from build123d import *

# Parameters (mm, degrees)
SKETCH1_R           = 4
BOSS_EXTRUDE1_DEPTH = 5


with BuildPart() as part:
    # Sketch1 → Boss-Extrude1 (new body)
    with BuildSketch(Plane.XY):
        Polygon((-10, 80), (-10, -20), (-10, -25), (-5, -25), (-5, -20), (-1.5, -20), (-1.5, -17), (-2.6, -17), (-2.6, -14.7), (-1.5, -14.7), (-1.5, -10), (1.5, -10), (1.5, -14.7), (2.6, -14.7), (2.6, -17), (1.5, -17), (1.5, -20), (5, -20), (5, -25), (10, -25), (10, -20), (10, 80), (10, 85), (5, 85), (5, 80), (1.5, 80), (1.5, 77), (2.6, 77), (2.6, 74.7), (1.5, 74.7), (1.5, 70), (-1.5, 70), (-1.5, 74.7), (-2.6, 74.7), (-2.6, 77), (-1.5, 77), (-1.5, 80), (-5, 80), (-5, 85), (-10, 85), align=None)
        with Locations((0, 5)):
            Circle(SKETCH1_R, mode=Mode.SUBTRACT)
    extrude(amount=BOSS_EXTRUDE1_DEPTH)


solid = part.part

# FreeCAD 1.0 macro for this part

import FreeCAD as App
import Part
import Sketcher

V = App.Vector


def add_polygon(sketch, points):
    """Adds a closed chain of lines whose ends are joined by coincident constraints."""
    first, n = sketch.GeometryCount, len(points)
    for a, b in zip(points, points[1:] + points[:1]):
        sketch.addGeometry(Part.LineSegment(App.Vector(*a, 0), App.Vector(*b, 0)), False)
    for i in range(n):
        sketch.addConstraint(Sketcher.Constraint("Coincident", first + i, 2, first + (i + 1) % n, 1))

doc = App.newDocument("Part")
body = doc.addObject("PartDesign::Body", "Body")

sketch1 = doc.addObject("Sketcher::SketchObject", "Sketch")
body.addObject(sketch1)
sketch1.AttachmentSupport = (doc.XY_Plane, [""])
sketch1.MapMode = "FlatFace"
add_polygon(sketch1, [(-10, -25), (-5, -25), (-5, -20), (-1.5, -20), (-1.5, -17), (-2.6, -17), (-2.6, -14.7), (-1.5, -14.7), (-1.5, -10), (1.5, -10), (1.5, -14.7), (2.6, -14.7), (2.6, -17), (1.5, -17), (1.5, -20), (5, -20), (5, -25), (10, -25), (10, 85), (5, 85), (5, 80), (1.5, 80), (1.5, 77), (2.6, 77), (2.6, 74.7), (1.5, 74.7), (1.5, 70), (-1.5, 70), (-1.5, 74.7), (-2.6, 74.7), (-2.6, 77), (-1.5, 77), (-1.5, 80), (-5, 80), (-5, 85), (-10, 85)])
sketch1.addGeometry(Part.Circle(V(0, 5, 0), V(0, 0, 1), 4), False)
sketch1.addConstraint(Sketcher.Constraint("Horizontal", 0))
sketch1.addConstraint(Sketcher.Constraint("Vertical", 1))
sketch1.addConstraint(Sketcher.Constraint("Horizontal", 2))
sketch1.addConstraint(Sketcher.Constraint("Vertical", 3))
sketch1.addConstraint(Sketcher.Constraint("Horizontal", 4))
sketch1.addConstraint(Sketcher.Constraint("Vertical", 5))
sketch1.addConstraint(Sketcher.Constraint("Horizontal", 6))
sketch1.addConstraint(Sketcher.Constraint("Vertical", 7))
sketch1.addConstraint(Sketcher.Constraint("Horizontal", 8))
sketch1.addConstraint(Sketcher.Constraint("Vertical", 9))
sketch1.addConstraint(Sketcher.Constraint("Horizontal", 10))
sketch1.addConstraint(Sketcher.Constraint("Vertical", 11))
sketch1.addConstraint(Sketcher.Constraint("Horizontal", 12))
sketch1.addConstraint(Sketcher.Constraint("Vertical", 13))
sketch1.addConstraint(Sketcher.Constraint("Horizontal", 14))
sketch1.addConstraint(Sketcher.Constraint("Vertical", 15))
sketch1.addConstraint(Sketcher.Constraint("Horizontal", 16))
sketch1.addConstraint(Sketcher.Constraint("Vertical", 17))
sketch1.addConstraint(Sketcher.Constraint("Horizontal", 18))
sketch1.addConstraint(Sketcher.Constraint("Vertical", 19))
sketch1.addConstraint(Sketcher.Constraint("Horizontal", 20))
sketch1.addConstraint(Sketcher.Constraint("Vertical", 21))
sketch1.addConstraint(Sketcher.Constraint("Horizontal", 22))
sketch1.addConstraint(Sketcher.Constraint("Vertical", 23))
sketch1.addConstraint(Sketcher.Constraint("Horizontal", 24))
sketch1.addConstraint(Sketcher.Constraint("Vertical", 25))
sketch1.addConstraint(Sketcher.Constraint("Horizontal", 26))
sketch1.addConstraint(Sketcher.Constraint("Vertical", 27))
sketch1.addConstraint(Sketcher.Constraint("Horizontal", 28))
sketch1.addConstraint(Sketcher.Constraint("Vertical", 29))
sketch1.addConstraint(Sketcher.Constraint("Horizontal", 30))
sketch1.addConstraint(Sketcher.Constraint("Vertical", 31))
sketch1.addConstraint(Sketcher.Constraint("Horizontal", 32))
sketch1.addConstraint(Sketcher.Constraint("Vertical", 33))
sketch1.addConstraint(Sketcher.Constraint("Horizontal", 34))
sketch1.addConstraint(Sketcher.Constraint("Vertical", 35))
sketch1.addConstraint(Sketcher.Constraint("Symmetric", 6, 2, 9, 2, -2))
sketch1.addConstraint(Sketcher.Constraint("Symmetric", 4, 2, 11, 2, -2))
sketch1.addConstraint(Sketcher.Constraint("Symmetric", 2, 2, 13, 2, -2))
sketch1.addConstraint(Sketcher.Constraint("Symmetric", 0, 2, 15, 2, -2))
sketch1.addConstraint(Sketcher.Constraint("Symmetric", 24, 2, 27, 2, -2))
sketch1.addConstraint(Sketcher.Constraint("Symmetric", 22, 2, 29, 2, -2))
sketch1.addConstraint(Sketcher.Constraint("Symmetric", 20, 2, 31, 2, -2))
sketch1.addConstraint(Sketcher.Constraint("Symmetric", 18, 2, 33, 2, -2))
sketch1.addConstraint(Sketcher.Constraint("PointOnObject", 36, 3, -2))
sketch1.addConstraint(Sketcher.Constraint("Vertical", 3, 2, 6, 2))
sketch1.addConstraint(Sketcher.Constraint("Vertical", 15, 2, 18, 2))
sketch1.addConstraint(Sketcher.Constraint("Vertical", 13, 2, 20, 2))
sketch1.addConstraint(Sketcher.Constraint("Vertical", 11, 2, 22, 2))
sketch1.addConstraint(Sketcher.Constraint("Vertical", 21, 2, 24, 2))
sketch1.addConstraint(Sketcher.Constraint("Equal", 0, 16))
sketch1.addConstraint(Sketcher.Constraint("Equal", 34, 1))
sketch1.addConstraint(Sketcher.Constraint("Equal", 26, 3))
sketch1.addConstraint(Sketcher.Constraint("Equal", 15, 19))
sketch1.addConstraint(Sketcher.Constraint("Equal", 13, 21))
sketch1.addConstraint(Sketcher.Constraint("Equal", 11, 23))
sketch1.addConstraint(Sketcher.Constraint("Equal", 9, 25))
sketch1.addConstraint(Sketcher.Constraint("Diameter", 36, 8.0))
sketch1.addConstraint(Sketcher.Constraint("DistanceX", 0, 1, 0, 2, 5.0))
sketch1.addConstraint(Sketcher.Constraint("DistanceX", 8, 1, 8, 2, 3.0))
sketch1.addConstraint(Sketcher.Constraint("DistanceY", 17, 1, 17, 2, 110.0))
sketch1.addConstraint(Sketcher.Constraint("DistanceX", 2, 1, 2, 2, 3.5))
sketch1.addConstraint(Sketcher.Constraint("DistanceX", 4, 2, 4, 1, 1.1))
sketch1.addConstraint(Sketcher.Constraint("DistanceY", 5, 1, 5, 2, 2.3))
sketch1.addConstraint(Sketcher.Constraint("DistanceY", 7, 1, 7, 2, 4.7))
sketch1.addConstraint(Sketcher.Constraint("DistanceY", -1, 1, 36, 3, 5.0))
sketch1.addConstraint(Sketcher.Constraint("DistanceY", 0, 2, -1, 1, 25.0))
pad1 = doc.addObject("PartDesign::Pad", "Pad")
body.addObject(pad1)
pad1.Profile = sketch1
pad1.Length = 5

doc.recompute()
